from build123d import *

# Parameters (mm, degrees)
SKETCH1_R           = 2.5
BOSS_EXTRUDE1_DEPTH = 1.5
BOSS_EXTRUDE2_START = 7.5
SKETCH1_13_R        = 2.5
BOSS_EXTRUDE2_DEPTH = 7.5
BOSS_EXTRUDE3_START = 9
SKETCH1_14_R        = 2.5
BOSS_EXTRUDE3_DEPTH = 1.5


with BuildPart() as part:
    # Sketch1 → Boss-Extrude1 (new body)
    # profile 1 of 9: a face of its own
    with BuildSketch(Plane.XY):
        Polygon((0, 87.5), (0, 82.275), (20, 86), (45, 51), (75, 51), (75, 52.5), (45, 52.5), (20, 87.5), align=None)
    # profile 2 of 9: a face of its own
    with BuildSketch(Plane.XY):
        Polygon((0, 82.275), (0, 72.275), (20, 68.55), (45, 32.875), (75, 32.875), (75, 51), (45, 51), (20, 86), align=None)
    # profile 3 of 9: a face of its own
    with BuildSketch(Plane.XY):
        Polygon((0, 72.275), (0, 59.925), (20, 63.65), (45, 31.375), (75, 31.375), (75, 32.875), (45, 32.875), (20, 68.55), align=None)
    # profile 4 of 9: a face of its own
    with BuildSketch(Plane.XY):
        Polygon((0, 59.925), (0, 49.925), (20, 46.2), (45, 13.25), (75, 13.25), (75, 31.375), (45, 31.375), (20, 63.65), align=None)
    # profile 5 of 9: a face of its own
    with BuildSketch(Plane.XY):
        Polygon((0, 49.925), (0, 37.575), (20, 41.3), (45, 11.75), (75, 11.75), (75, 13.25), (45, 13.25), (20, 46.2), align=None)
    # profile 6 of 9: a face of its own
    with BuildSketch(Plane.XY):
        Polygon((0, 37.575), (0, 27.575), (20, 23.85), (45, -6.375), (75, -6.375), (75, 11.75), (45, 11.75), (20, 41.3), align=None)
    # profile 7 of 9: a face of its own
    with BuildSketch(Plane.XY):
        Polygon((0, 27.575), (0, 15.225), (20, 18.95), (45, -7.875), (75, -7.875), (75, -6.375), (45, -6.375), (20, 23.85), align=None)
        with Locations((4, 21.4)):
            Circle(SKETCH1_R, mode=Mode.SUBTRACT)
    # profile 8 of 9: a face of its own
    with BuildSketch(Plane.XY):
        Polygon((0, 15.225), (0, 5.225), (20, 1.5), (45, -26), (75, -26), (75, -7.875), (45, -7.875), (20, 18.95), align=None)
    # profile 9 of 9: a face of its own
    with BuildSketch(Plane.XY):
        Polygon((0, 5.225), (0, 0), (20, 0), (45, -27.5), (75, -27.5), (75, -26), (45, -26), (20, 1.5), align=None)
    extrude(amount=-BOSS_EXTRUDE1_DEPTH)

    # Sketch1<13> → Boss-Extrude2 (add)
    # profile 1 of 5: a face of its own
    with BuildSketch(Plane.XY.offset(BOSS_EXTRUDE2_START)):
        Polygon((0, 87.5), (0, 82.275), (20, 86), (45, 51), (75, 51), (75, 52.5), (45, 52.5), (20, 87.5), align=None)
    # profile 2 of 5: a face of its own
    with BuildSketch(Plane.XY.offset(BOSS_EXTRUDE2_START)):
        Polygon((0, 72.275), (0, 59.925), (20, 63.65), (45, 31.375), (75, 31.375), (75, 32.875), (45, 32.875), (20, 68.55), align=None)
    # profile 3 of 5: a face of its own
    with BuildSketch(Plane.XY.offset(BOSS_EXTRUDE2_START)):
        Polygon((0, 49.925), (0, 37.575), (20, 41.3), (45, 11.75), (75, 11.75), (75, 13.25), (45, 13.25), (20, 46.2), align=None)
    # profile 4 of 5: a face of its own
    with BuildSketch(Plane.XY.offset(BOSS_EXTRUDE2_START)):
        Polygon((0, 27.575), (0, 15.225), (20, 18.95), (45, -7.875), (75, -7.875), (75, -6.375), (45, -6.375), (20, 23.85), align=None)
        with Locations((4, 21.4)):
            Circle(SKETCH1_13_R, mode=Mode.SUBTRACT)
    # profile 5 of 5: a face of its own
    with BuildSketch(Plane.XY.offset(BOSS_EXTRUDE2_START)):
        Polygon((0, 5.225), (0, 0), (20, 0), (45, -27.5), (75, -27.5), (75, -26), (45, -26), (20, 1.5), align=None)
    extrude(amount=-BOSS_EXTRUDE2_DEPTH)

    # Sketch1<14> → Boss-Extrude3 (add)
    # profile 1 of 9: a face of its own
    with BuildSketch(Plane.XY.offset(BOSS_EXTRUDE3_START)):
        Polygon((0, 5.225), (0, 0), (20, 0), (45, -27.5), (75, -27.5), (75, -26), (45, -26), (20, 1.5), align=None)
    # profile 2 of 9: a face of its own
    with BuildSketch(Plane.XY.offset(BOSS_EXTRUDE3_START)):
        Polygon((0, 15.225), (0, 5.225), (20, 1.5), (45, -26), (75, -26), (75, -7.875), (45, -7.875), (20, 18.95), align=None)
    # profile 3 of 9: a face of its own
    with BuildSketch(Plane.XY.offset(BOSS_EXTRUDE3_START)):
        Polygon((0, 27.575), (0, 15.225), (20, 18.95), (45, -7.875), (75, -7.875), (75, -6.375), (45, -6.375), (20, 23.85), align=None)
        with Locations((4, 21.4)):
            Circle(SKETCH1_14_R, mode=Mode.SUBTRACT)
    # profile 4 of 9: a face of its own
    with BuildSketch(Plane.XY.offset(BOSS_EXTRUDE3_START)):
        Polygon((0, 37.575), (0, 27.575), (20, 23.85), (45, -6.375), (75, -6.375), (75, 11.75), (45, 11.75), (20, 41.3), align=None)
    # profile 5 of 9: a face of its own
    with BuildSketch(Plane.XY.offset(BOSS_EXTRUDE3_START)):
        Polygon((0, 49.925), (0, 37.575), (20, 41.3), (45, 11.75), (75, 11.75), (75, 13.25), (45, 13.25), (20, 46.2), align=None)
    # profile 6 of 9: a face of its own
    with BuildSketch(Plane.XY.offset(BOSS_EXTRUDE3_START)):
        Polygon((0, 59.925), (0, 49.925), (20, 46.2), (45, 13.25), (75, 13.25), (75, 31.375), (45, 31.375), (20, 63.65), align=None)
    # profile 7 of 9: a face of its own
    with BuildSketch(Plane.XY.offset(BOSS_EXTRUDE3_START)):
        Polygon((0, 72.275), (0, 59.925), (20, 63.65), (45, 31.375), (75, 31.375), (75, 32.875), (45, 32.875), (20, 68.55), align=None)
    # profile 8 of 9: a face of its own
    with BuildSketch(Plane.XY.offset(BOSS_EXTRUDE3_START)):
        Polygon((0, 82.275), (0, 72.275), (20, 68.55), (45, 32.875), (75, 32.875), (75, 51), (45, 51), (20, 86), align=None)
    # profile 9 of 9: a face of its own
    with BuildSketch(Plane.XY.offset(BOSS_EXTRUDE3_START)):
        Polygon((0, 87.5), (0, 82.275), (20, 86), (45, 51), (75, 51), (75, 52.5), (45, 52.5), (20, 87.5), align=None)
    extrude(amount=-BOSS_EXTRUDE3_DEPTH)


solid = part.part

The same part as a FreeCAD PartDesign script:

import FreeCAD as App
import Part
import Sketcher
from FreeCAD import Vector


def add_polygon(sketch, points):
    """Adds a closed chain of lines whose ends are joined by coincident constraints."""
    first, n = sketch.GeometryCount, len(points)
    for a, b in zip(points, points[1:] + points[:1]):
        sketch.addGeometry(Part.LineSegment(App.Vector(*a, 0), App.Vector(*b, 0)), False)
    for i in range(n):
        sketch.addConstraint(Sketcher.Constraint("Coincident", first + i, 2, first + (i + 1) % n, 1))

doc = App.newDocument("Part")
body = doc.addObject("PartDesign::Body", "Body")

# Sketch on XY plane
sketch1 = body.newObject("Sketcher::SketchObject", "Sketch")
sketch1.AttachmentSupport = (doc.getObject("XY_Plane"), [""])
sketch1.MapMode = "FlatFace"
add_polygon(sketch1, [(0, 87.5), (0, 0), (20, 0), (45, -27.5), (75, -27.5), (75, 52.5), (45, 52.5), (20, 87.5)])  # lines 0-7
sketch1.addGeometry(Part.Circle(Vector(4, 21.4, 0), Vector(0, 0, 1), 2.5), False)  # 8
sketch1.addConstraint([
    Sketcher.Constraint("Vertical", 0),
    Sketcher.Constraint("Horizontal", 1),
    Sketcher.Constraint("Horizontal", 3),
    Sketcher.Constraint("Vertical", 4),
    Sketcher.Constraint("Horizontal", 5),
    Sketcher.Constraint("Horizontal", 7),
    Sketcher.Constraint("Coincident", 0, 2, -1, 1),
    Sketcher.Constraint("Vertical", 2, 2, 5, 2),
    Sketcher.Constraint("Vertical", 1, 2, 6, 2),
    Sketcher.Constraint("Diameter", 8, 5.0),
    Sketcher.Constraint("DistanceX", 1, 1, 1, 2, 20.0),
    Sketcher.Constraint("DistanceX", 3, 1, 3, 2, 30.0),
    Sketcher.Constraint("DistanceY", 4, 1, 4, 2, 80.0),
    Sketcher.Constraint("DistanceY", 0, 2, 0, 1, 87.5),
    Sketcher.Constraint("DistanceX", -1, 1, 8, 3, 4.0),
    Sketcher.Constraint("DistanceX", -1, 1, 2, 2, 45.0),
    Sketcher.Constraint("DistanceY", 5, 2, 6, 2, 35.0),
    Sketcher.Constraint("DistanceY", -1, 1, 8, 3, 21.4),
])
pad1 = body.newObject("PartDesign::Pad", "Pad")
pad1.Profile = sketch1
pad1.Length = 1.5
pad1.Reversed = True

# Sketch on XY plane
sketch2 = body.newObject("Sketcher::SketchObject", "Sketch001")
sketch2.AttachmentSupport = (doc.getObject("XY_Plane"), [""])
sketch2.MapMode = "FlatFace"
sketch2.AttachmentOffset = App.Placement(Vector(0, 0, 7.5), App.Rotation())
add_polygon(sketch2, [(0, 87.5), (0, 82.3), (20, 86), (45, 51), (75, 51), (75, 52.5), (45, 52.5), (20, 87.5)])  # lines 0-7
add_polygon(sketch2, [(0, 72.3), (0, 59.9), (20, 63.6), (45, 31.4), (75, 31.4), (75, 32.9), (45, 32.9), (20, 68.5)])  # lines 8-15
add_polygon(sketch2, [(0, 49.9), (0, 37.6), (20, 41.3), (45, 11.8), (75, 11.8), (75, 13.2), (45, 13.2), (20, 46.2)])  # lines 16-23
add_polygon(sketch2, [(0, 27.6), (0, 15.2), (20, 18.9), (45, -7.9), (75, -7.9), (75, -6.4), (45, -6.4), (20, 23.9)])  # lines 24-31
sketch2.addGeometry(Part.Circle(Vector(4, 21.4, 0), Vector(0, 0, 1), 2.5), False)  # 32
add_polygon(sketch2, [(0, 5.2), (0, 0), (20, 0), (45, -27.5), (75, -27.5), (75, -26), (45, -26), (20, 1.5)])  # lines 33-40
sketch2.addConstraint([
    Sketcher.Constraint("Vertical", 0),
    Sketcher.Constraint("Horizontal", 3),
    Sketcher.Constraint("Vertical", 4),
    Sketcher.Constraint("Horizontal", 5),
    Sketcher.Constraint("Horizontal", 7),
    Sketcher.Constraint("Vertical", 8),
    Sketcher.Constraint("Horizontal", 11),
    Sketcher.Constraint("Vertical", 12),
    Sketcher.Constraint("Horizontal", 13),
    Sketcher.Constraint("Vertical", 16),
    Sketcher.Constraint("Horizontal", 19),
    Sketcher.Constraint("Vertical", 20),
    Sketcher.Constraint("Horizontal", 21),
    Sketcher.Constraint("Vertical", 24),
    Sketcher.Constraint("Horizontal", 27),
    Sketcher.Constraint("Vertical", 28),
    Sketcher.Constraint("Horizontal", 29),
    Sketcher.Constraint("Vertical", 33),
    Sketcher.Constraint("Horizontal", 34),
    Sketcher.Constraint("Horizontal", 36),
    Sketcher.Constraint("Vertical", 37),
    Sketcher.Constraint("Horizontal", 38),
    Sketcher.Constraint("Coincident", 33, 2, -1, 1),
    Sketcher.Constraint("PointOnObject", 0, 2, -2),
    Sketcher.Constraint("PointOnObject", 8, 2, -2),
    Sketcher.Constraint("PointOnObject", 16, 2, -2),
    Sketcher.Constraint("PointOnObject", 24, 2, -2),
    Sketcher.Constraint("Parallel", 2, 6),
    Sketcher.Constraint("Parallel", 1, 9),
    Sketcher.Constraint("Parallel", 9, 17),
    Sketcher.Constraint("Parallel", 15, 23),
    Sketcher.Constraint("Parallel", 17, 25),
    Sketcher.Constraint("Parallel", 23, 31),
    Sketcher.Constraint("Parallel", 35, 39),
    Sketcher.Constraint("Parallel", 31, 40),
    Sketcher.Constraint("Vertical", 2, 2, 5, 2),
    Sketcher.Constraint("Vertical", 1, 2, 6, 2),
    Sketcher.Constraint("Vertical", 6, 2, 9, 2),
    Sketcher.Constraint("Vertical", 5, 2, 10, 2),
    Sketcher.Constraint("Vertical", 4, 2, 11, 2),
    Sketcher.Constraint("Vertical", 10, 2, 13, 2),
    Sketcher.Constraint("Vertical", 9, 2, 14, 2),
    Sketcher.Constraint("Vertical", 14, 2, 17, 2),
    Sketcher.Constraint("Vertical", 13, 2, 18, 2),
    Sketcher.Constraint("Vertical", 12, 2, 19, 2),
    Sketcher.Constraint("Vertical", 18, 2, 21, 2),
    Sketcher.Constraint("Vertical", 17, 2, 22, 2),
    Sketcher.Constraint("Vertical", 22, 2, 25, 2),
    Sketcher.Constraint("Vertical", 21, 2, 26, 2),
    Sketcher.Constraint("Vertical", 20, 2, 27, 2),
    Sketcher.Constraint("Vertical", 26, 2, 29, 2),
    Sketcher.Constraint("Vertical", 25, 2, 30, 2),
    Sketcher.Constraint("Vertical", 30, 2, 34, 2),
    Sketcher.Constraint("Vertical", 29, 2, 35, 2),
    Sketcher.Constraint("Vertical", 28, 2, 36, 2),
    Sketcher.Constraint("Vertical", 35, 2, 38, 2),
    Sketcher.Constraint("Vertical", 34, 2, 39, 2),
    Sketcher.Constraint("Equal", 4, 12),
    Sketcher.Constraint("Equal", 8, 16),
    Sketcher.Constraint("Equal", 12, 20),
    Sketcher.Constraint("Equal", 16, 24),
    Sketcher.Constraint("Equal", 20, 28),
    Sketcher.Constraint("Equal", 0, 33),
    Sketcher.Constraint("Equal", 28, 37),
    Sketcher.Constraint("Diameter", 32, 5.0),
    Sketcher.Constraint("DistanceX", 3, 1, 3, 2, 30.0),
    Sketcher.Constraint("DistanceX", 7, 2, 7, 1, 20.0),
    Sketcher.Constraint("DistanceY", 4, 1, 4, 2, 1.5),
    Sketcher.Constraint("DistanceX", -1, 1, 32, 3, 4.0),
    Sketcher.Constraint("DistanceY", -1, 1, 1, 2, 86.0),
    Sketcher.Constraint("DistanceX", -1, 1, 2, 2, 45.0),
    Sketcher.Constraint("DistanceY", -1, 1, 2, 2, 51.0),
    Sketcher.Constraint("DistanceY", 37, 2, -1, 1, 26.0),
    Sketcher.Constraint("DistanceY", 15, 2, 0, 2, 10.0),
    Sketcher.Constraint("DistanceY", 23, 2, 8, 2, 10.0),
    Sketcher.Constraint("DistanceY", 31, 2, 16, 2, 10.0),
    Sketcher.Constraint("DistanceY", 40, 2, 24, 2, 10.0),
    Sketcher.Constraint("DistanceY", 8, 2, 8, 1, 12.35),
    Sketcher.Constraint("DistanceY", -1, 1, 32, 3, 21.4),
    Sketcher.Constraint("DistanceY", 21, 2, 25, 2, 5.7),
    Sketcher.Constraint("DistanceY", -1, 1, 10, 2, 31.375),
    Sketcher.Constraint("DistanceY", 26, 2, -1, 1, 7.875),
])
pad2 = body.newObject("PartDesign::Pad", "Pad001")
pad2.Profile = sketch2
pad2.Length = 7.5
pad2.Reversed = True

# Sketch on XY plane
sketch3 = body.newObject("Sketcher::SketchObject", "Sketch002")
sketch3.AttachmentSupport = (doc.getObject("XY_Plane"), [""])
sketch3.MapMode = "FlatFace"
sketch3.AttachmentOffset = App.Placement(Vector(0, 0, 9), App.Rotation())
add_polygon(sketch3, [(0, 0), (20, 0), (45, -27.5), (75, -27.5), (75, 52.5), (45, 52.5), (20, 87.5), (0, 87.5)])  # lines 0-7
sketch3.addGeometry(Part.Circle(Vector(4, 21.4, 0), Vector(0, 0, 1), 2.5), False)  # 8
sketch3.addConstraint([
    Sketcher.Constraint("Horizontal", 0),
    Sketcher.Constraint("Horizontal", 2),
    Sketcher.Constraint("Vertical", 3),
    Sketcher.Constraint("Horizontal", 4),
    Sketcher.Constraint("Horizontal", 6),
    Sketcher.Constraint("Vertical", 7),
    Sketcher.Constraint("Coincident", 7, 2, -1, 1),
    Sketcher.Constraint("Vertical", 1, 2, 4, 2),
    Sketcher.Constraint("Vertical", 0, 2, 5, 2),
    Sketcher.Constraint("Diameter", 8, 5.0),
    Sketcher.Constraint("DistanceX", 0, 1, 0, 2, 20.0),
    Sketcher.Constraint("DistanceX", 2, 1, 2, 2, 30.0),
    Sketcher.Constraint("DistanceY", 3, 1, 3, 2, 80.0),
    Sketcher.Constraint("DistanceY", 7, 2, 7, 1, 87.5),
    Sketcher.Constraint("DistanceX", -1, 1, 8, 3, 4.0),
    Sketcher.Constraint("DistanceX", -1, 1, 1, 2, 45.0),
    Sketcher.Constraint("DistanceY", 4, 2, 5, 2, 35.0),
    Sketcher.Constraint("DistanceY", -1, 1, 8, 3, 21.4),
])
pad3 = body.newObject("PartDesign::Pad", "Pad002")
pad3.Profile = sketch3
pad3.Length = 1.5
pad3.Reversed = True

doc.recompute()
